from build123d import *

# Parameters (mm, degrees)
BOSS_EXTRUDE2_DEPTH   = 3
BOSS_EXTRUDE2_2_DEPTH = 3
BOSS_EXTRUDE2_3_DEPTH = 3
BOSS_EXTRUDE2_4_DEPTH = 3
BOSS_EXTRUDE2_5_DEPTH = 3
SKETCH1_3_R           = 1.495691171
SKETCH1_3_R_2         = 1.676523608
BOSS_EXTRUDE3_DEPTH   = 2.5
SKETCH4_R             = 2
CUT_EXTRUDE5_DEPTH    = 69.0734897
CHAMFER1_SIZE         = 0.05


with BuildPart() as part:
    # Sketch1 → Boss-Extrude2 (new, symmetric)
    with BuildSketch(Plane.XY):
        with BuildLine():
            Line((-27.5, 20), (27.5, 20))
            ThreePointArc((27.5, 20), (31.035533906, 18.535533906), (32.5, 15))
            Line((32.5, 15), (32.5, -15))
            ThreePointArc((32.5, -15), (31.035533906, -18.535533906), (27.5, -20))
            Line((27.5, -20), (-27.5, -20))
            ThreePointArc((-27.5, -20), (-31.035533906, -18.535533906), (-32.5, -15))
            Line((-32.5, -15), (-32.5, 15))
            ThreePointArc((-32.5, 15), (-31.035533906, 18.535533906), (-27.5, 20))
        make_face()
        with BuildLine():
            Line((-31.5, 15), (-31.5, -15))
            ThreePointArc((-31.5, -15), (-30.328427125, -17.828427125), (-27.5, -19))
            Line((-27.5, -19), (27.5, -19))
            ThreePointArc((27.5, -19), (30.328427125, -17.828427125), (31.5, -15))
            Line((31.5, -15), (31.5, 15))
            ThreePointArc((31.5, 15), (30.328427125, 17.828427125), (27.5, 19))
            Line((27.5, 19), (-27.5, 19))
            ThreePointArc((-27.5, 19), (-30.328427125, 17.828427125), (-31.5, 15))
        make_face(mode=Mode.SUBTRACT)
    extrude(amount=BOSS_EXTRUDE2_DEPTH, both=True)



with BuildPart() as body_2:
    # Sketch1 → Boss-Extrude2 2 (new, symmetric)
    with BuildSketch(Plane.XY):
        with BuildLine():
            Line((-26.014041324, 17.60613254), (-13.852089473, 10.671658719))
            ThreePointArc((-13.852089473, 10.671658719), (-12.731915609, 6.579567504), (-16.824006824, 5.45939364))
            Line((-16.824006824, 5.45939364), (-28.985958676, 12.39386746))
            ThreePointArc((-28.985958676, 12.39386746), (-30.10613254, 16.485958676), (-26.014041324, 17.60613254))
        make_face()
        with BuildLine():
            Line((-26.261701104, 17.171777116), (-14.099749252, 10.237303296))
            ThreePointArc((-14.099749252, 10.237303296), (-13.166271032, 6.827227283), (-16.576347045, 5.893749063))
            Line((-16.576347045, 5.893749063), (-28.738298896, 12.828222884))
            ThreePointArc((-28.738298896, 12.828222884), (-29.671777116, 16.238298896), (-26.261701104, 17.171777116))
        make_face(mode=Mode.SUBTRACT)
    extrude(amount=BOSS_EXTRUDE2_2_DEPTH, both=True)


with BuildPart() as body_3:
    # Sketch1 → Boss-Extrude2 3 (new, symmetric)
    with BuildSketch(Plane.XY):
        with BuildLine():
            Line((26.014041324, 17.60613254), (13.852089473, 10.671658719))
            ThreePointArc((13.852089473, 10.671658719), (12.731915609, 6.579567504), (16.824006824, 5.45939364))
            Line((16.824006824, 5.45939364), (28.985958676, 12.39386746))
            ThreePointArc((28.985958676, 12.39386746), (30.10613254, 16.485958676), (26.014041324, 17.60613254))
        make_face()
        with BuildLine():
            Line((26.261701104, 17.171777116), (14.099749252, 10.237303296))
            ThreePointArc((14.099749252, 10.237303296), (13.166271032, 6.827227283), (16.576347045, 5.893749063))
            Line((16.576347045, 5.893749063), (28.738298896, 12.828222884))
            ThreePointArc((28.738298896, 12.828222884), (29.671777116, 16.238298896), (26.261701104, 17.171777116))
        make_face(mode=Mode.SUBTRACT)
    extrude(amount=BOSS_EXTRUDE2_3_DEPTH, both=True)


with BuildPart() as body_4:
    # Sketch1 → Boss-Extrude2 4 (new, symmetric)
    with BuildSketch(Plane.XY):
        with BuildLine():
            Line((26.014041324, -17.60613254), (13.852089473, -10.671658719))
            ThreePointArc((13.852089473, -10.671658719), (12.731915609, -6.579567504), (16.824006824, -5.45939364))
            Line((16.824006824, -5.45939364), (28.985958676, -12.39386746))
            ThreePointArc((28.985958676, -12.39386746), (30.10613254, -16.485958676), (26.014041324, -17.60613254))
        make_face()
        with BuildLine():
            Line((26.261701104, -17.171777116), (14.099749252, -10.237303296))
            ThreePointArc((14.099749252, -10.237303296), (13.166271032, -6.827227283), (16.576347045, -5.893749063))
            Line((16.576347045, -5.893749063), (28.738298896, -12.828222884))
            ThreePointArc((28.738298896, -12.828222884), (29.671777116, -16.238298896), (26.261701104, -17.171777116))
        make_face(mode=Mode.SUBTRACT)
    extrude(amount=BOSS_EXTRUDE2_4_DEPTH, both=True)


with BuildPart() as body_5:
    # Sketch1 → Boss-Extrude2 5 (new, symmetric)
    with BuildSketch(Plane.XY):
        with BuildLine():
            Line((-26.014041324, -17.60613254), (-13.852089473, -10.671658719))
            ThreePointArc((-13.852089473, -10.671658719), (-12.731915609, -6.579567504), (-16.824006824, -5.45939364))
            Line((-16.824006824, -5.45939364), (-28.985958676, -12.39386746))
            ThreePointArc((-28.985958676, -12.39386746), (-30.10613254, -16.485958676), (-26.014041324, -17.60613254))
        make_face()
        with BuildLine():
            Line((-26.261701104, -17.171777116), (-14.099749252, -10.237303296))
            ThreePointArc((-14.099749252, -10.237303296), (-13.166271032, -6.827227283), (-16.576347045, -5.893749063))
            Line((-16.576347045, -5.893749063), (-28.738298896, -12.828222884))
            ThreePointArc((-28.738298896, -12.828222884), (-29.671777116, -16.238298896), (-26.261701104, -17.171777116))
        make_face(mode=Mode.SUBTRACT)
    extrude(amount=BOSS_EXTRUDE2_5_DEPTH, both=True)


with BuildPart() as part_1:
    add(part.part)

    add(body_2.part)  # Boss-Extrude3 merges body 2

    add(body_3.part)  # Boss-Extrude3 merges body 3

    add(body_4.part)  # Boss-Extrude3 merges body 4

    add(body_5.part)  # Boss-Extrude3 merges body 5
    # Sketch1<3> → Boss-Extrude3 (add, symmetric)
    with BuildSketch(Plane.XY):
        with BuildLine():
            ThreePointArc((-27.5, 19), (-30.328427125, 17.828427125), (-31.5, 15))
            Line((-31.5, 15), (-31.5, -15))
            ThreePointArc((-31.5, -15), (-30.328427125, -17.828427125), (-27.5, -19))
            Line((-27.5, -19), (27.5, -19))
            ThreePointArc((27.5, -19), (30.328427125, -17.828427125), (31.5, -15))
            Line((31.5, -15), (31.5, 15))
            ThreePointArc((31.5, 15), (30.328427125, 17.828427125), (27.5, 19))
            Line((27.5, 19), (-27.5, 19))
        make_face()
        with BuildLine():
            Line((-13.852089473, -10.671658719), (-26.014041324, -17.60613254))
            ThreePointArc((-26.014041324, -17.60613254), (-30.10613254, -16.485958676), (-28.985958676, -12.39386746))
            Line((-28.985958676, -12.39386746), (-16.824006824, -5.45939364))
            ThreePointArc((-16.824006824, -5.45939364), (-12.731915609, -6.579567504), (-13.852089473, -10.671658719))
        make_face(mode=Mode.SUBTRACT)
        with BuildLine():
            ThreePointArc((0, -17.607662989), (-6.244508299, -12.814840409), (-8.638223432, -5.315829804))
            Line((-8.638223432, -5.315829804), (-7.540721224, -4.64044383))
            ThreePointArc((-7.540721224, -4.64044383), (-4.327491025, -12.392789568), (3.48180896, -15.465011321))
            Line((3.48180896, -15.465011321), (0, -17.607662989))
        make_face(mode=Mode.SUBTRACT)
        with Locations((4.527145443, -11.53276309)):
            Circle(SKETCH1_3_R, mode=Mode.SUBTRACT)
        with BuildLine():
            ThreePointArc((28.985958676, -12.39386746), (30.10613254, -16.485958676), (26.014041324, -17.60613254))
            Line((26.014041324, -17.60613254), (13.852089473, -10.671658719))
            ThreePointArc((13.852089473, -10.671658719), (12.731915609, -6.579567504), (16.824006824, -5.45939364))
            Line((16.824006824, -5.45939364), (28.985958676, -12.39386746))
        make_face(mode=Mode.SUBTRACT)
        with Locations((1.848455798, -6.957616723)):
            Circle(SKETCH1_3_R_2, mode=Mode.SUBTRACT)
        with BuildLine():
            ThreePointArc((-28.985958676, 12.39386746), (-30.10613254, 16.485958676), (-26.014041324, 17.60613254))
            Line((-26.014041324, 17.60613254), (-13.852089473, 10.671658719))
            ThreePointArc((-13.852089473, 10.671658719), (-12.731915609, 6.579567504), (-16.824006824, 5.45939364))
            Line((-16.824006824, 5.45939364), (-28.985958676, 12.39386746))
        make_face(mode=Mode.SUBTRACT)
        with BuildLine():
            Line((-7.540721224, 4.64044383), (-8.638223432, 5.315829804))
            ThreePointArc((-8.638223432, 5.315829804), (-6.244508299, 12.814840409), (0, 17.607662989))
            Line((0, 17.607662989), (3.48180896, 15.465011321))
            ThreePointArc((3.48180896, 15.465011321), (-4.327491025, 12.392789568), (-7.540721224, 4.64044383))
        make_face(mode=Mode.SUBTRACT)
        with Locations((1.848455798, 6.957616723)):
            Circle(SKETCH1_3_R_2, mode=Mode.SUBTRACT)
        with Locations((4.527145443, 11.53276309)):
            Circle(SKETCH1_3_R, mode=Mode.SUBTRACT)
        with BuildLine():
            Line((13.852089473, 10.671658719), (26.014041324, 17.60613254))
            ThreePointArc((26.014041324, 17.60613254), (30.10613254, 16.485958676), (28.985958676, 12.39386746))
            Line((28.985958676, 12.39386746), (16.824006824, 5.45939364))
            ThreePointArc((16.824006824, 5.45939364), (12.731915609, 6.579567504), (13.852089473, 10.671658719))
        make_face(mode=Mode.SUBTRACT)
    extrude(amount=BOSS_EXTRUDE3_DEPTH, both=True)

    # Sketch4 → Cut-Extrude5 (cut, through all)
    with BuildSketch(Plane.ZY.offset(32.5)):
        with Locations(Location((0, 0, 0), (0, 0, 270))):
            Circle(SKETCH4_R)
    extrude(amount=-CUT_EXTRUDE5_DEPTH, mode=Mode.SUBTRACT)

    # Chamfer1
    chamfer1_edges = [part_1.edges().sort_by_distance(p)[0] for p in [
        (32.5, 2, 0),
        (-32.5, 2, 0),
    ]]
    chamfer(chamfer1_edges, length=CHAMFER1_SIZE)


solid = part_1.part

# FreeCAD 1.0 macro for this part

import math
import FreeCAD as App
import Part
import Sketcher

V = App.Vector
Q = App.Units.Quantity


def edges_at(feature, points):
    """Names of the edges that pass closest to the given points."""
    edges = feature.Shape.Edges
    near = lambda p: min(range(len(edges)), key=lambda i: edges[i].distToShape(Part.Vertex(*p))[0])
    return sorted({f"Edge{near(p) + 1}" for p in points})

doc = App.newDocument("Part")
body = doc.addObject("PartDesign::Body", "Body")

sketch1 = doc.addObject("Sketcher::SketchObject", "Sketch")
body.addObject(sketch1)
sketch1.AttachmentSupport = (doc.XY_Plane, [""])
sketch1.MapMode = "FlatFace"
sketch1.addGeometry(Part.LineSegment(V(27.5, 20, 0), V(-27.5, 20, 0)), False)
sketch1.addGeometry(Part.ArcOfCircle(Part.Circle(V(-27.5, 15, 0), V(0, 0, 1), 5), math.radians(90), math.radians(180)), False)
sketch1.addGeometry(Part.LineSegment(V(-32.5, 15, 0), V(-32.5, -15, 0)), False)
sketch1.addGeometry(Part.ArcOfCircle(Part.Circle(V(-27.5, -15, 0), V(0, 0, 1), 5), math.radians(180), math.radians(270)), False)
sketch1.addGeometry(Part.LineSegment(V(-27.5, -20, 0), V(27.5, -20, 0)), False)
sketch1.addGeometry(Part.ArcOfCircle(Part.Circle(V(27.5, -15, 0), V(0, 0, 1), 5), math.radians(-90), math.radians(0)), False)
sketch1.addGeometry(Part.LineSegment(V(32.5, -15, 0), V(32.5, 15, 0)), False)
sketch1.addGeometry(Part.ArcOfCircle(Part.Circle(V(27.5, 15, 0), V(0, 0, 1), 5), math.radians(0), math.radians(90)), False)
sketch1.addGeometry(Part.ArcOfCircle(Part.Circle(V(-27.5, 15, 0), V(0, 0, 1), 4), math.radians(90), math.radians(180)), False)
sketch1.addGeometry(Part.LineSegment(V(-27.5, 19, 0), V(27.5, 19, 0)), False)
sketch1.addGeometry(Part.ArcOfCircle(Part.Circle(V(27.5, 15, 0), V(0, 0, 1), 4), math.radians(0), math.radians(90)), False)
sketch1.addGeometry(Part.LineSegment(V(31.5, 15, 0), V(31.5, -15, 0)), False)
sketch1.addGeometry(Part.ArcOfCircle(Part.Circle(V(27.5, -15, 0), V(0, 0, 1), 4), math.radians(-90), math.radians(0)), False)
sketch1.addGeometry(Part.LineSegment(V(27.5, -19, 0), V(-27.5, -19, 0)), False)
sketch1.addGeometry(Part.ArcOfCircle(Part.Circle(V(-27.5, -15, 0), V(0, 0, 1), 4), math.radians(180), math.radians(270)), False)
sketch1.addGeometry(Part.LineSegment(V(-31.5, -15, 0), V(-31.5, 15, 0)), False)
sketch1.addConstraint(Sketcher.Constraint("Tangent", 0, 2, 1, 1))
sketch1.addConstraint(Sketcher.Constraint("Tangent", 1, 2, 2, 1))
sketch1.addConstraint(Sketcher.Constraint("Tangent", 2, 2, 3, 1))
sketch1.addConstraint(Sketcher.Constraint("Tangent", 3, 2, 4, 1))
sketch1.addConstraint(Sketcher.Constraint("Tangent", 4, 2, 5, 1))
sketch1.addConstraint(Sketcher.Constraint("Tangent", 5, 2, 6, 1))
sketch1.addConstraint(Sketcher.Constraint("Tangent", 6, 2, 7, 1))
sketch1.addConstraint(Sketcher.Constraint("Tangent", 7, 2, 0, 1))
sketch1.addConstraint(Sketcher.Constraint("Tangent", 8, 1, 9, 1))
sketch1.addConstraint(Sketcher.Constraint("Tangent", 9, 2, 10, 2))
sketch1.addConstraint(Sketcher.Constraint("Tangent", 10, 1, 11, 1))
sketch1.addConstraint(Sketcher.Constraint("Tangent", 11, 2, 12, 2))
sketch1.addConstraint(Sketcher.Constraint("Tangent", 12, 1, 13, 1))
sketch1.addConstraint(Sketcher.Constraint("Tangent", 13, 2, 14, 2))
sketch1.addConstraint(Sketcher.Constraint("Tangent", 14, 1, 15, 1))
sketch1.addConstraint(Sketcher.Constraint("Tangent", 15, 2, 8, 2))
sketch1.addConstraint(Sketcher.Constraint("Horizontal", 0))
sketch1.addConstraint(Sketcher.Constraint("Vertical", 2))
sketch1.addConstraint(Sketcher.Constraint("Horizontal", 4))
sketch1.addConstraint(Sketcher.Constraint("Vertical", 6))
sketch1.addConstraint(Sketcher.Constraint("Horizontal", 9))
sketch1.addConstraint(Sketcher.Constraint("Vertical", 11))
sketch1.addConstraint(Sketcher.Constraint("Horizontal", 13))
sketch1.addConstraint(Sketcher.Constraint("Vertical", 15))
sketch1.addConstraint(Sketcher.Constraint("Coincident", 8, 3, 1, 3))
sketch1.addConstraint(Sketcher.Constraint("Coincident", 10, 3, 7, 3))
sketch1.addConstraint(Sketcher.Constraint("Coincident", 12, 3, 5, 3))
sketch1.addConstraint(Sketcher.Constraint("Equal", 1, 3))
sketch1.addConstraint(Sketcher.Constraint("Equal", 3, 5))
sketch1.addConstraint(Sketcher.Constraint("Equal", 5, 7))
sketch1.addConstraint(Sketcher.Constraint("Equal", 12, 14))
sketch1.addConstraint(Sketcher.Constraint("Symmetric", 1, 3, 5, 3, -1, 1))
sketch1.addConstraint(Sketcher.Constraint("Radius", 1, Q("5 mm")))
sketch1.addConstraint(Sketcher.Constraint("Radius", 8, Q("4 mm")))
sketch1.addConstraint(Sketcher.Constraint("DistanceX", 0, 2, 0, 1, Q("55 mm")))
sketch1.addConstraint(Sketcher.Constraint("DistanceY", 2, 2, 2, 1, Q("30 mm")))
pad1 = doc.addObject("PartDesign::Pad", "Pad")
body.addObject(pad1)
pad1.Profile = sketch1
pad1.Length = 6
pad1.Midplane = True
body2 = doc.addObject("PartDesign::Body", "Body001")

sketch2 = doc.addObject("Sketcher::SketchObject", "Sketch001")
body2.addObject(sketch2)
sketch2.AttachmentSupport = (doc.getObject("XY_Plane001"), [""])
sketch2.MapMode = "FlatFace"
sketch2.addGeometry(Part.LineSegment(V(-13.852089, 10.671659, 0), V(-26.014041, 17.606133, 0)), False)
sketch2.addGeometry(Part.ArcOfCircle(Part.Circle(V(-27.5, 15, 0), V(0, 0, 1), 3), math.radians(60.309175), math.radians(240.309175)), False)
sketch2.addGeometry(Part.LineSegment(V(-28.985959, 12.393867, 0), V(-16.824007, 5.459394, 0)), False)
sketch2.addGeometry(Part.ArcOfCircle(Part.Circle(V(-15.338048, 8.065526, 0), V(0, 0, 1), 3), math.radians(-119.690825), math.radians(60.309175)), False)
sketch2.addGeometry(Part.LineSegment(V(-26.261701, 17.171777, 0), V(-14.099749, 10.237303, 0)), False)
sketch2.addGeometry(Part.ArcOfCircle(Part.Circle(V(-15.338048, 8.065526, 0), V(0, 0, 1), 2.5), math.radians(-119.690825), math.radians(60.309175)), False)
sketch2.addGeometry(Part.LineSegment(V(-16.576347, 5.893749, 0), V(-28.738299, 12.828223, 0)), False)
sketch2.addGeometry(Part.ArcOfCircle(Part.Circle(V(-27.5, 15, 0), V(0, 0, 1), 2.5), math.radians(60.309175), math.radians(240.309175)), False)
sketch2.addConstraint(Sketcher.Constraint("Tangent", 0, 2, 1, 1))
sketch2.addConstraint(Sketcher.Constraint("Tangent", 1, 2, 2, 1))
sketch2.addConstraint(Sketcher.Constraint("Tangent", 2, 2, 3, 1))
sketch2.addConstraint(Sketcher.Constraint("Tangent", 3, 2, 0, 1))
sketch2.addConstraint(Sketcher.Constraint("Tangent", 4, 2, 5, 2))
sketch2.addConstraint(Sketcher.Constraint("Tangent", 5, 1, 6, 1))
sketch2.addConstraint(Sketcher.Constraint("Tangent", 6, 2, 7, 2))
sketch2.addConstraint(Sketcher.Constraint("Tangent", 7, 1, 4, 1))
sketch2.addConstraint(Sketcher.Constraint("Coincident", 5, 3, 3, 3))
sketch2.addConstraint(Sketcher.Constraint("Coincident", 7, 3, 1, 3))
sketch2.addConstraint(Sketcher.Constraint("Equal", 1, 3))
sketch2.addConstraint(Sketcher.Constraint("Equal", 5, 7))
sketch2.addConstraint(Sketcher.Constraint("Radius", 1, Q("3 mm")))
sketch2.addConstraint(Sketcher.Constraint("Radius", 5, Q("2.5 mm")))
sketch2.addConstraint(Sketcher.Constraint("Distance", 0, Q("14 mm")))
sketch2.addConstraint(Sketcher.Constraint("DistanceY", -1, 1, 1, 3, Q("15 mm")))
sketch2.addConstraint(Sketcher.Constraint("DistanceX", 1, 3, -1, 1, Q("27.5 mm")))
sketch2.addConstraint(Sketcher.Constraint("DistanceX", 6, 2, -1, 1, Q("28.738299 mm")))
pad2 = doc.addObject("PartDesign::Pad", "Pad001")
body2.addObject(pad2)
pad2.Profile = sketch2
pad2.Length = 6
pad2.Midplane = True
body3 = doc.addObject("PartDesign::Body", "Body002")

sketch3 = doc.addObject("Sketcher::SketchObject", "Sketch002")
body3.addObject(sketch3)
sketch3.AttachmentSupport = (doc.getObject("XY_Plane002"), [""])
sketch3.MapMode = "FlatFace"
sketch3.addGeometry(Part.LineSegment(V(26.014041, 17.606133, 0), V(13.852089, 10.671659, 0)), False)
sketch3.addGeometry(Part.ArcOfCircle(Part.Circle(V(15.338048, 8.065526, 0), V(0, 0, 1), 3), math.radians(119.690825), math.radians(299.690825)), False)
sketch3.addGeometry(Part.LineSegment(V(16.824007, 5.459394, 0), V(28.985959, 12.393867, 0)), False)
sketch3.addGeometry(Part.ArcOfCircle(Part.Circle(V(27.5, 15, 0), V(0, 0, 1), 3), math.radians(-60.309175), math.radians(119.690825)), False)
sketch3.addGeometry(Part.LineSegment(V(14.099749, 10.237303, 0), V(26.261701, 17.171777, 0)), False)
sketch3.addGeometry(Part.ArcOfCircle(Part.Circle(V(27.5, 15, 0), V(0, 0, 1), 2.5), math.radians(-60.309175), math.radians(119.690825)), False)
sketch3.addGeometry(Part.LineSegment(V(28.738299, 12.828223, 0), V(16.576347, 5.893749, 0)), False)
sketch3.addGeometry(Part.ArcOfCircle(Part.Circle(V(15.338048, 8.065526, 0), V(0, 0, 1), 2.5), math.radians(119.690825), math.radians(299.690825)), False)
sketch3.addConstraint(Sketcher.Constraint("Tangent", 0, 2, 1, 1))
sketch3.addConstraint(Sketcher.Constraint("Tangent", 1, 2, 2, 1))
sketch3.addConstraint(Sketcher.Constraint("Tangent", 2, 2, 3, 1))
sketch3.addConstraint(Sketcher.Constraint("Tangent", 3, 2, 0, 1))
sketch3.addConstraint(Sketcher.Constraint("Tangent", 4, 2, 5, 2))
sketch3.addConstraint(Sketcher.Constraint("Tangent", 5, 1, 6, 1))
sketch3.addConstraint(Sketcher.Constraint("Tangent", 6, 2, 7, 2))
sketch3.addConstraint(Sketcher.Constraint("Tangent", 7, 1, 4, 1))
sketch3.addConstraint(Sketcher.Constraint("Coincident", 5, 3, 3, 3))
sketch3.addConstraint(Sketcher.Constraint("Coincident", 7, 3, 1, 3))
sketch3.addConstraint(Sketcher.Constraint("Equal", 1, 3))
sketch3.addConstraint(Sketcher.Constraint("Equal", 5, 7))
sketch3.addConstraint(Sketcher.Constraint("Radius", 1, Q("3 mm")))
sketch3.addConstraint(Sketcher.Constraint("Radius", 5, Q("2.5 mm")))
sketch3.addConstraint(Sketcher.Constraint("Distance", 0, Q("14 mm")))
sketch3.addConstraint(Sketcher.Constraint("DistanceY", -1, 1, 3, 3, Q("15 mm")))
sketch3.addConstraint(Sketcher.Constraint("DistanceX", -1, 1, 3, 3, Q("27.5 mm")))
sketch3.addConstraint(Sketcher.Constraint("DistanceX", -1, 1, 4, 2, Q("26.261701 mm")))
pad3 = doc.addObject("PartDesign::Pad", "Pad002")
body3.addObject(pad3)
pad3.Profile = sketch3
pad3.Length = 6
pad3.Midplane = True
body4 = doc.addObject("PartDesign::Body", "Body003")

sketch4 = doc.addObject("Sketcher::SketchObject", "Sketch003")
body4.addObject(sketch4)
sketch4.AttachmentSupport = (doc.getObject("XY_Plane003"), [""])
sketch4.MapMode = "FlatFace"
sketch4.addGeometry(Part.LineSegment(V(13.852089, -10.671659, 0), V(26.014041, -17.606133, 0)), False)
sketch4.addGeometry(Part.ArcOfCircle(Part.Circle(V(27.5, -15, 0), V(0, 0, 1), 3), math.radians(-119.690825), math.radians(60.309175)), False)
sketch4.addGeometry(Part.LineSegment(V(28.985959, -12.393867, 0), V(16.824007, -5.459394, 0)), False)
sketch4.addGeometry(Part.ArcOfCircle(Part.Circle(V(15.338048, -8.065526, 0), V(0, 0, 1), 3), math.radians(60.309175), math.radians(240.309175)), False)
sketch4.addGeometry(Part.LineSegment(V(26.261701, -17.171777, 0), V(14.099749, -10.237303, 0)), False)
sketch4.addGeometry(Part.ArcOfCircle(Part.Circle(V(15.338048, -8.065526, 0), V(0, 0, 1), 2.5), math.radians(60.309175), math.radians(240.309175)), False)
sketch4.addGeometry(Part.LineSegment(V(16.576347, -5.893749, 0), V(28.738299, -12.828223, 0)), False)
sketch4.addGeometry(Part.ArcOfCircle(Part.Circle(V(27.5, -15, 0), V(0, 0, 1), 2.5), math.radians(-119.690825), math.radians(60.309175)), False)
sketch4.addConstraint(Sketcher.Constraint("Tangent", 0, 2, 1, 1))
sketch4.addConstraint(Sketcher.Constraint("Tangent", 1, 2, 2, 1))
sketch4.addConstraint(Sketcher.Constraint("Tangent", 2, 2, 3, 1))
sketch4.addConstraint(Sketcher.Constraint("Tangent", 3, 2, 0, 1))
sketch4.addConstraint(Sketcher.Constraint("Tangent", 4, 2, 5, 2))
sketch4.addConstraint(Sketcher.Constraint("Tangent", 5, 1, 6, 1))
sketch4.addConstraint(Sketcher.Constraint("Tangent", 6, 2, 7, 2))
sketch4.addConstraint(Sketcher.Constraint("Tangent", 7, 1, 4, 1))
sketch4.addConstraint(Sketcher.Constraint("Coincident", 5, 3, 3, 3))
sketch4.addConstraint(Sketcher.Constraint("Coincident", 7, 3, 1, 3))
sketch4.addConstraint(Sketcher.Constraint("Equal", 1, 3))
sketch4.addConstraint(Sketcher.Constraint("Equal", 5, 7))
sketch4.addConstraint(Sketcher.Constraint("Radius", 1, Q("3 mm")))
sketch4.addConstraint(Sketcher.Constraint("Radius", 5, Q("2.5 mm")))
sketch4.addConstraint(Sketcher.Constraint("Distance", 0, Q("14 mm")))
sketch4.addConstraint(Sketcher.Constraint("DistanceY", 1, 3, -1, 1, Q("15 mm")))
sketch4.addConstraint(Sketcher.Constraint("DistanceX", -1, 1, 1, 3, Q("27.5 mm")))
sketch4.addConstraint(Sketcher.Constraint("DistanceX", -1, 1, 6, 2, Q("28.738299 mm")))
pad4 = doc.addObject("PartDesign::Pad", "Pad003")
body4.addObject(pad4)
pad4.Profile = sketch4
pad4.Length = 6
pad4.Midplane = True
body5 = doc.addObject("PartDesign::Body", "Body004")

sketch5 = doc.addObject("Sketcher::SketchObject", "Sketch004")
body5.addObject(sketch5)
sketch5.AttachmentSupport = (doc.getObject("XY_Plane004"), [""])
sketch5.MapMode = "FlatFace"
sketch5.addGeometry(Part.LineSegment(V(-26.014041, -17.606133, 0), V(-13.852089, -10.671659, 0)), False)
sketch5.addGeometry(Part.ArcOfCircle(Part.Circle(V(-15.338048, -8.065526, 0), V(0, 0, 1), 3), math.radians(-60.309175), math.radians(119.690825)), False)
sketch5.addGeometry(Part.LineSegment(V(-16.824007, -5.459394, 0), V(-28.985959, -12.393867, 0)), False)
sketch5.addGeometry(Part.ArcOfCircle(Part.Circle(V(-27.5, -15, 0), V(0, 0, 1), 3), math.radians(119.690825), math.radians(299.690825)), False)
sketch5.addGeometry(Part.LineSegment(V(-14.099749, -10.237303, 0), V(-26.261701, -17.171777, 0)), False)
sketch5.addGeometry(Part.ArcOfCircle(Part.Circle(V(-27.5, -15, 0), V(0, 0, 1), 2.5), math.radians(119.690825), math.radians(299.690825)), False)
sketch5.addGeometry(Part.LineSegment(V(-28.738299, -12.828223, 0), V(-16.576347, -5.893749, 0)), False)
sketch5.addGeometry(Part.ArcOfCircle(Part.Circle(V(-15.338048, -8.065526, 0), V(0, 0, 1), 2.5), math.radians(-60.309175), math.radians(119.690825)), False)
sketch5.addConstraint(Sketcher.Constraint("Tangent", 0, 2, 1, 1))
sketch5.addConstraint(Sketcher.Constraint("Tangent", 1, 2, 2, 1))
sketch5.addConstraint(Sketcher.Constraint("Tangent", 2, 2, 3, 1))
sketch5.addConstraint(Sketcher.Constraint("Tangent", 3, 2, 0, 1))
sketch5.addConstraint(Sketcher.Constraint("Tangent", 4, 2, 5, 2))
sketch5.addConstraint(Sketcher.Constraint("Tangent", 5, 1, 6, 1))
sketch5.addConstraint(Sketcher.Constraint("Tangent", 6, 2, 7, 2))
sketch5.addConstraint(Sketcher.Constraint("Tangent", 7, 1, 4, 1))
sketch5.addConstraint(Sketcher.Constraint("Coincident", 5, 3, 3, 3))
sketch5.addConstraint(Sketcher.Constraint("Coincident", 7, 3, 1, 3))
sketch5.addConstraint(Sketcher.Constraint("Equal", 1, 3))
sketch5.addConstraint(Sketcher.Constraint("Equal", 5, 7))
sketch5.addConstraint(Sketcher.Constraint("Radius", 1, Q("3 mm")))
sketch5.addConstraint(Sketcher.Constraint("Radius", 5, Q("2.5 mm")))
sketch5.addConstraint(Sketcher.Constraint("Distance", 0, Q("14 mm")))
sketch5.addConstraint(Sketcher.Constraint("DistanceY", 3, 3, -1, 1, Q("15 mm")))
sketch5.addConstraint(Sketcher.Constraint("DistanceX", 3, 3, -1, 1, Q("27.5 mm")))
sketch5.addConstraint(Sketcher.Constraint("DistanceX", 4, 2, -1, 1, Q("26.261701 mm")))
pad5 = doc.addObject("PartDesign::Pad", "Pad004")
body5.addObject(pad5)
pad5.Profile = sketch5
pad5.Length = 6
pad5.Midplane = True
body.AllowCompound = True
doc.recompute()

boolean = doc.addObject("PartDesign::Boolean", "Boolean")
body.addObject(boolean)
boolean.Type = "Fuse"
boolean.addObjects([body2])
doc.recompute()

boolean2 = doc.addObject("PartDesign::Boolean", "Boolean001")
body.addObject(boolean2)
boolean2.Type = "Fuse"
boolean2.addObjects([body3])
doc.recompute()

boolean3 = doc.addObject("PartDesign::Boolean", "Boolean002")
body.addObject(boolean3)
boolean3.Type = "Fuse"
boolean3.addObjects([body4])
doc.recompute()

boolean4 = doc.addObject("PartDesign::Boolean", "Boolean003")
body.addObject(boolean4)
boolean4.Type = "Fuse"
boolean4.addObjects([body5])

sketch6 = doc.addObject("Sketcher::SketchObject", "Sketch005")
body.addObject(sketch6)
sketch6.AttachmentSupport = (doc.XY_Plane, [""])
sketch6.MapMode = "FlatFace"
sketch6.addGeometry(Part.ArcOfCircle(Part.Circle(V(-27.5, 15, 0), V(0, 0, 1), 4), math.radians(90), math.radians(180)), False)
sketch6.addGeometry(Part.LineSegment(V(-31.5, 15, 0), V(-31.5, -15, 0)), False)
sketch6.addGeometry(Part.ArcOfCircle(Part.Circle(V(-27.5, -15, 0), V(0, 0, 1), 4), math.radians(180), math.radians(270)), False)
sketch6.addGeometry(Part.LineSegment(V(-27.5, -19, 0), V(27.5, -19, 0)), False)
sketch6.addGeometry(Part.ArcOfCircle(Part.Circle(V(27.5, -15, 0), V(0, 0, 1), 4), math.radians(-90), math.radians(0)), False)
sketch6.addGeometry(Part.LineSegment(V(31.5, -15, 0), V(31.5, 15, 0)), False)
sketch6.addGeometry(Part.ArcOfCircle(Part.Circle(V(27.5, 15, 0), V(0, 0, 1), 4), math.radians(0), math.radians(90)), False)
sketch6.addGeometry(Part.LineSegment(V(27.5, 19, 0), V(-27.5, 19, 0)), False)
sketch6.addGeometry(Part.ArcOfCircle(Part.Circle(V(-15.338048, -8.065526, 0), V(0, 0, 1), 3), math.radians(-60.309175), math.radians(119.690825)), False)
sketch6.addGeometry(Part.LineSegment(V(-13.852089, -10.671659, 0), V(-26.014041, -17.606133, 0)), False)
sketch6.addGeometry(Part.ArcOfCircle(Part.Circle(V(-27.5, -15, 0), V(0, 0, 1), 3), math.radians(119.690825), math.radians(299.690825)), False)
sketch6.addGeometry(Part.LineSegment(V(-28.985959, -12.393867, 0), V(-16.824007, -5.459394, 0)), False)
sketch6.addGeometry(Part.LineSegment(V(3.481809, -15.465011, 0), V(0, -17.607663, 0)), False)
sketch6.addGeometry(Part.ArcOfCircle(Part.Circle(V(4.527154, -5.244934, 0), V(0, 0, 1), 13.165568), math.radians(-179.691465), math.radians(-110.112414)), False)
sketch6.addGeometry(Part.LineSegment(V(-8.638223, -5.31583, 0), V(-7.540721, -4.640444, 0)), False)
sketch6.addGeometry(Part.ArcOfCircle(Part.Circle(V(3.194975, -4.73275, 0), V(0, 0, 1), 10.736093), math.radians(179.507377), math.radians(271.53094)), False)
sketch6.addGeometry(Part.Circle(V(4.527145, -11.532763, 0), V(0, 0, 1), 1.495691), False)
sketch6.addGeometry(Part.LineSegment(V(16.824007, -5.459394, 0), V(28.985959, -12.393867, 0)), False)
sketch6.addGeometry(Part.ArcOfCircle(Part.Circle(V(27.5, -15, 0), V(0, 0, 1), 3), math.radians(-119.690825), math.radians(60.309175)), False)
sketch6.addGeometry(Part.LineSegment(V(26.014041, -17.606133, 0), V(13.852089, -10.671659, 0)), False)
sketch6.addGeometry(Part.ArcOfCircle(Part.Circle(V(15.338048, -8.065526, 0), V(0, 0, 1), 3), math.radians(60.309175), math.radians(240.309175)), False)
sketch6.addGeometry(Part.Circle(V(1.848456, -6.957617, 0), V(0, 0, 1), 1.676524), False)
sketch6.addGeometry(Part.LineSegment(V(-16.824007, 5.459394, 0), V(-28.985959, 12.393867, 0)), False)
sketch6.addGeometry(Part.ArcOfCircle(Part.Circle(V(-27.5, 15, 0), V(0, 0, 1), 3), math.radians(60.309175), math.radians(240.309175)), False)
sketch6.addGeometry(Part.LineSegment(V(-26.014041, 17.606133, 0), V(-13.852089, 10.671659, 0)), False)
sketch6.addGeometry(Part.ArcOfCircle(Part.Circle(V(-15.338048, 8.065526, 0), V(0, 0, 1), 3), math.radians(-119.690825), math.radians(60.309175)), False)
sketch6.addGeometry(Part.ArcOfCircle(Part.Circle(V(3.194975, 4.73275, 0), V(0, 0, 1), 10.736093), math.radians(88.46906), math.radians(180.492623)), False)
sketch6.addGeometry(Part.LineSegment(V(-7.540721, 4.640444, 0), V(-8.638223, 5.31583, 0)), False)
sketch6.addGeometry(Part.ArcOfCircle(Part.Circle(V(4.527154, 5.244934, 0), V(0, 0, 1), 13.165568), math.radians(110.112414), math.radians(179.691465)), False)
sketch6.addGeometry(Part.LineSegment(V(0, 17.607663, 0), V(3.481809, 15.465011, 0)), False)
sketch6.addGeometry(Part.Circle(V(1.848456, 6.957617, 0), V(0, 0, 1), 1.676524), False)
sketch6.addGeometry(Part.Circle(V(4.527145, 11.532763, 0), V(0, 0, 1), 1.495691), False)
sketch6.addGeometry(Part.ArcOfCircle(Part.Circle(V(15.338048, 8.065526, 0), V(0, 0, 1), 3), math.radians(119.690825), math.radians(299.690825)), False)
sketch6.addGeometry(Part.LineSegment(V(13.852089, 10.671659, 0), V(26.014041, 17.606133, 0)), False)
sketch6.addGeometry(Part.ArcOfCircle(Part.Circle(V(27.5, 15, 0), V(0, 0, 1), 3), math.radians(-60.309175), math.radians(119.690825)), False)
sketch6.addGeometry(Part.LineSegment(V(28.985959, 12.393867, 0), V(16.824007, 5.459394, 0)), False)
sketch6.addConstraint(Sketcher.Constraint("Tangent", 0, 2, 1, 1))
sketch6.addConstraint(Sketcher.Constraint("Tangent", 1, 2, 2, 1))
sketch6.addConstraint(Sketcher.Constraint("Tangent", 2, 2, 3, 1))
sketch6.addConstraint(Sketcher.Constraint("Tangent", 3, 2, 4, 1))
sketch6.addConstraint(Sketcher.Constraint("Tangent", 4, 2, 5, 1))
sketch6.addConstraint(Sketcher.Constraint("Tangent", 5, 2, 6, 1))
sketch6.addConstraint(Sketcher.Constraint("Tangent", 6, 2, 7, 1))
sketch6.addConstraint(Sketcher.Constraint("Tangent", 7, 2, 0, 1))
sketch6.addConstraint(Sketcher.Constraint("Tangent", 8, 1, 9, 1))
sketch6.addConstraint(Sketcher.Constraint("Tangent", 9, 2, 10, 2))
sketch6.addConstraint(Sketcher.Constraint("Tangent", 10, 1, 11, 1))
sketch6.addConstraint(Sketcher.Constraint("Tangent", 11, 2, 8, 2))
sketch6.addConstraint(Sketcher.Constraint("Coincident", 12, 2, 13, 2))
sketch6.addConstraint(Sketcher.Constraint("Coincident", 13, 1, 14, 1))
sketch6.addConstraint(Sketcher.Constraint("Coincident", 14, 2, 15, 1))
sketch6.addConstraint(Sketcher.Constraint("Coincident", 15, 2, 12, 1))
sketch6.addConstraint(Sketcher.Constraint("Tangent", 17, 2, 18, 2))
sketch6.addConstraint(Sketcher.Constraint("Tangent", 18, 1, 19, 1))
sketch6.addConstraint(Sketcher.Constraint("Tangent", 19, 2, 20, 2))
sketch6.addConstraint(Sketcher.Constraint("Tangent", 20, 1, 17, 1))
sketch6.addConstraint(Sketcher.Constraint("Tangent", 22, 2, 23, 2))
sketch6.addConstraint(Sketcher.Constraint("Tangent", 23, 1, 24, 1))
sketch6.addConstraint(Sketcher.Constraint("Tangent", 24, 2, 25, 2))
sketch6.addConstraint(Sketcher.Constraint("Tangent", 25, 1, 22, 1))
sketch6.addConstraint(Sketcher.Constraint("Coincident", 26, 2, 27, 1))
sketch6.addConstraint(Sketcher.Constraint("Coincident", 27, 2, 28, 2))
sketch6.addConstraint(Sketcher.Constraint("Coincident", 28, 1, 29, 1))
sketch6.addConstraint(Sketcher.Constraint("Coincident", 29, 2, 26, 1))
sketch6.addConstraint(Sketcher.Constraint("Tangent", 32, 1, 33, 1))
sketch6.addConstraint(Sketcher.Constraint("Tangent", 33, 2, 34, 2))
sketch6.addConstraint(Sketcher.Constraint("Tangent", 34, 1, 35, 1))
sketch6.addConstraint(Sketcher.Constraint("Tangent", 35, 2, 32, 2))
sketch6.addConstraint(Sketcher.Constraint("Vertical", 1))
sketch6.addConstraint(Sketcher.Constraint("Horizontal", 3))
sketch6.addConstraint(Sketcher.Constraint("Vertical", 5))
sketch6.addConstraint(Sketcher.Constraint("Horizontal", 7))
sketch6.addConstraint(Sketcher.Constraint("Coincident", 10, 3, 2, 3))
sketch6.addConstraint(Sketcher.Constraint("Coincident", 18, 3, 4, 3))
sketch6.addConstraint(Sketcher.Constraint("Coincident", 23, 3, 0, 3))
sketch6.addConstraint(Sketcher.Constraint("Coincident", 34, 3, 6, 3))
sketch6.addConstraint(Sketcher.Constraint("Equal", 0, 2))
sketch6.addConstraint(Sketcher.Constraint("Equal", 2, 4))
sketch6.addConstraint(Sketcher.Constraint("Equal", 4, 6))
sketch6.addConstraint(Sketcher.Constraint("Equal", 8, 10))
sketch6.addConstraint(Sketcher.Constraint("Equal", 10, 18))
sketch6.addConstraint(Sketcher.Constraint("Equal", 18, 20))
sketch6.addConstraint(Sketcher.Constraint("Equal", 20, 23))
sketch6.addConstraint(Sketcher.Constraint("Equal", 23, 25))
sketch6.addConstraint(Sketcher.Constraint("Equal", 15, 26))
sketch6.addConstraint(Sketcher.Constraint("Equal", 13, 28))
sketch6.addConstraint(Sketcher.Constraint("Equal", 21, 30))
sketch6.addConstraint(Sketcher.Constraint("Equal", 16, 31))
sketch6.addConstraint(Sketcher.Constraint("Equal", 25, 32))
sketch6.addConstraint(Sketcher.Constraint("Equal", 32, 34))
sketch6.addConstraint(Sketcher.Constraint("Symmetric", 0, 3, 4, 3, -1, 1))
sketch6.addConstraint(Sketcher.Constraint("Symmetric", 20, 3, 25, 3, -1, 1))
sketch6.addConstraint(Sketcher.Constraint("Symmetric", 8, 3, 32, 3, -1, 1))
sketch6.addConstraint(Sketcher.Constraint("Symmetric", 12, 2, 28, 1, -1, 1))
sketch6.addConstraint(Sketcher.Constraint("Symmetric", 8, 3, 20, 3, -2))
sketch6.addConstraint(Sketcher.Constraint("Symmetric", 15, 3, 26, 3, -1))
sketch6.addConstraint(Sketcher.Constraint("Symmetric", 13, 3, 28, 3, -1))
sketch6.addConstraint(Sketcher.Constraint("Symmetric", 21, 3, 30, 3, -1))
sketch6.addConstraint(Sketcher.Constraint("Symmetric", 16, 3, 31, 3, -1))
sketch6.addConstraint(Sketcher.Constraint("Parallel", 12, 14))
sketch6.addConstraint(Sketcher.Constraint("Parallel", 27, 29))
sketch6.addConstraint(Sketcher.Constraint("Vertical", 14, 2, 26, 2))
sketch6.addConstraint(Sketcher.Constraint("Vertical", 15, 2, 29, 2))
sketch6.addConstraint(Sketcher.Constraint("Radius", 0, Q("4 mm")))
sketch6.addConstraint(Sketcher.Constraint("Radius", 8, Q("3 mm")))
sketch6.addConstraint(Sketcher.Constraint("DistanceX", 3, 1, 3, 2, Q("55 mm")))
sketch6.addConstraint(Sketcher.Constraint("DistanceY", 1, 2, 1, 1, Q("30 mm")))
sketch6.addConstraint(Sketcher.Constraint("Distance", 9, Q("14 mm")))
sketch6.addConstraint(Sketcher.Constraint("Radius", 13, Q("13.165568 mm")))
sketch6.addConstraint(Sketcher.Constraint("Diameter", 16, Q("2.991382 mm")))
sketch6.addConstraint(Sketcher.Constraint("Diameter", 21, Q("3.353047 mm")))
sketch6.addConstraint(Sketcher.Constraint("Radius", 15, Q("10.736093 mm")))
sketch6.addConstraint(Sketcher.Constraint("DistanceX", 8, 3, 13, 3, Q("19.865202 mm")))
sketch6.addConstraint(Sketcher.Constraint("DistanceY", 15, 3, 26, 3, Q("9.465501 mm")))
sketch6.addConstraint(Sketcher.Constraint("DistanceY", 12, 2, 16, 3, Q("6.0749 mm")))
sketch6.addConstraint(Sketcher.Constraint("DistanceX", 13, 1, 15, 3, Q("11.833199 mm")))
sketch6.addConstraint(Sketcher.Constraint("Distance", 12, Q("4.08827 mm")))
sketch6.addConstraint(Sketcher.Constraint("DistanceX", 8, 3, -1, 1, Q("15.338048 mm")))
sketch6.addConstraint(Sketcher.Constraint("DistanceY", 13, 1, -1, 1, Q("5.31583 mm")))
sketch6.addConstraint(Sketcher.Constraint("DistanceX", -1, 1, 15, 2, Q("3.481809 mm")))
sketch6.addConstraint(Sketcher.Constraint("DistanceX", 15, 3, 16, 3, Q("1.33217 mm")))
sketch6.addConstraint(Sketcher.Constraint("DistanceX", 21, 3, 15, 3, Q("1.346519 mm")))
sketch6.addConstraint(Sketcher.Constraint("DistanceY", 20, 3, 21, 3, Q("1.107909 mm")))
pad6 = doc.addObject("PartDesign::Pad", "Pad005")
body.addObject(pad6)
pad6.Profile = sketch6
pad6.Length = 5
pad6.Midplane = True

sketch7 = doc.addObject("Sketcher::SketchObject", "Sketch006")
body.addObject(sketch7)
sketch7.AttachmentSupport = (doc.YZ_Plane, [""])
sketch7.MapMode = "FlatFace"
sketch7.AttachmentOffset = App.Placement(V(0, 0, -32.5), App.Rotation())
sketch7.addGeometry(Part.Circle(V(0, 0, 0), V(0, 0, 1), 2), False)
sketch7.addConstraint(Sketcher.Constraint("Coincident", 0, 3, -1, 1))
sketch7.addConstraint(Sketcher.Constraint("Diameter", 0, Q("4 mm")))
pocket1 = doc.addObject("PartDesign::Pocket", "Pocket")
body.addObject(pocket1)
pocket1.Profile = sketch7
pocket1.Type = "ThroughAll"
pocket1.Reversed = True
doc.recompute()

chamfer = doc.addObject("PartDesign::Chamfer", "Chamfer")
body.addObject(chamfer)
chamfer.Base = (pocket1, edges_at(pocket1, [(32.5, 2, 0), (-32.5, 2, 0)]))
chamfer.Size = 0.05

doc.recompute()
